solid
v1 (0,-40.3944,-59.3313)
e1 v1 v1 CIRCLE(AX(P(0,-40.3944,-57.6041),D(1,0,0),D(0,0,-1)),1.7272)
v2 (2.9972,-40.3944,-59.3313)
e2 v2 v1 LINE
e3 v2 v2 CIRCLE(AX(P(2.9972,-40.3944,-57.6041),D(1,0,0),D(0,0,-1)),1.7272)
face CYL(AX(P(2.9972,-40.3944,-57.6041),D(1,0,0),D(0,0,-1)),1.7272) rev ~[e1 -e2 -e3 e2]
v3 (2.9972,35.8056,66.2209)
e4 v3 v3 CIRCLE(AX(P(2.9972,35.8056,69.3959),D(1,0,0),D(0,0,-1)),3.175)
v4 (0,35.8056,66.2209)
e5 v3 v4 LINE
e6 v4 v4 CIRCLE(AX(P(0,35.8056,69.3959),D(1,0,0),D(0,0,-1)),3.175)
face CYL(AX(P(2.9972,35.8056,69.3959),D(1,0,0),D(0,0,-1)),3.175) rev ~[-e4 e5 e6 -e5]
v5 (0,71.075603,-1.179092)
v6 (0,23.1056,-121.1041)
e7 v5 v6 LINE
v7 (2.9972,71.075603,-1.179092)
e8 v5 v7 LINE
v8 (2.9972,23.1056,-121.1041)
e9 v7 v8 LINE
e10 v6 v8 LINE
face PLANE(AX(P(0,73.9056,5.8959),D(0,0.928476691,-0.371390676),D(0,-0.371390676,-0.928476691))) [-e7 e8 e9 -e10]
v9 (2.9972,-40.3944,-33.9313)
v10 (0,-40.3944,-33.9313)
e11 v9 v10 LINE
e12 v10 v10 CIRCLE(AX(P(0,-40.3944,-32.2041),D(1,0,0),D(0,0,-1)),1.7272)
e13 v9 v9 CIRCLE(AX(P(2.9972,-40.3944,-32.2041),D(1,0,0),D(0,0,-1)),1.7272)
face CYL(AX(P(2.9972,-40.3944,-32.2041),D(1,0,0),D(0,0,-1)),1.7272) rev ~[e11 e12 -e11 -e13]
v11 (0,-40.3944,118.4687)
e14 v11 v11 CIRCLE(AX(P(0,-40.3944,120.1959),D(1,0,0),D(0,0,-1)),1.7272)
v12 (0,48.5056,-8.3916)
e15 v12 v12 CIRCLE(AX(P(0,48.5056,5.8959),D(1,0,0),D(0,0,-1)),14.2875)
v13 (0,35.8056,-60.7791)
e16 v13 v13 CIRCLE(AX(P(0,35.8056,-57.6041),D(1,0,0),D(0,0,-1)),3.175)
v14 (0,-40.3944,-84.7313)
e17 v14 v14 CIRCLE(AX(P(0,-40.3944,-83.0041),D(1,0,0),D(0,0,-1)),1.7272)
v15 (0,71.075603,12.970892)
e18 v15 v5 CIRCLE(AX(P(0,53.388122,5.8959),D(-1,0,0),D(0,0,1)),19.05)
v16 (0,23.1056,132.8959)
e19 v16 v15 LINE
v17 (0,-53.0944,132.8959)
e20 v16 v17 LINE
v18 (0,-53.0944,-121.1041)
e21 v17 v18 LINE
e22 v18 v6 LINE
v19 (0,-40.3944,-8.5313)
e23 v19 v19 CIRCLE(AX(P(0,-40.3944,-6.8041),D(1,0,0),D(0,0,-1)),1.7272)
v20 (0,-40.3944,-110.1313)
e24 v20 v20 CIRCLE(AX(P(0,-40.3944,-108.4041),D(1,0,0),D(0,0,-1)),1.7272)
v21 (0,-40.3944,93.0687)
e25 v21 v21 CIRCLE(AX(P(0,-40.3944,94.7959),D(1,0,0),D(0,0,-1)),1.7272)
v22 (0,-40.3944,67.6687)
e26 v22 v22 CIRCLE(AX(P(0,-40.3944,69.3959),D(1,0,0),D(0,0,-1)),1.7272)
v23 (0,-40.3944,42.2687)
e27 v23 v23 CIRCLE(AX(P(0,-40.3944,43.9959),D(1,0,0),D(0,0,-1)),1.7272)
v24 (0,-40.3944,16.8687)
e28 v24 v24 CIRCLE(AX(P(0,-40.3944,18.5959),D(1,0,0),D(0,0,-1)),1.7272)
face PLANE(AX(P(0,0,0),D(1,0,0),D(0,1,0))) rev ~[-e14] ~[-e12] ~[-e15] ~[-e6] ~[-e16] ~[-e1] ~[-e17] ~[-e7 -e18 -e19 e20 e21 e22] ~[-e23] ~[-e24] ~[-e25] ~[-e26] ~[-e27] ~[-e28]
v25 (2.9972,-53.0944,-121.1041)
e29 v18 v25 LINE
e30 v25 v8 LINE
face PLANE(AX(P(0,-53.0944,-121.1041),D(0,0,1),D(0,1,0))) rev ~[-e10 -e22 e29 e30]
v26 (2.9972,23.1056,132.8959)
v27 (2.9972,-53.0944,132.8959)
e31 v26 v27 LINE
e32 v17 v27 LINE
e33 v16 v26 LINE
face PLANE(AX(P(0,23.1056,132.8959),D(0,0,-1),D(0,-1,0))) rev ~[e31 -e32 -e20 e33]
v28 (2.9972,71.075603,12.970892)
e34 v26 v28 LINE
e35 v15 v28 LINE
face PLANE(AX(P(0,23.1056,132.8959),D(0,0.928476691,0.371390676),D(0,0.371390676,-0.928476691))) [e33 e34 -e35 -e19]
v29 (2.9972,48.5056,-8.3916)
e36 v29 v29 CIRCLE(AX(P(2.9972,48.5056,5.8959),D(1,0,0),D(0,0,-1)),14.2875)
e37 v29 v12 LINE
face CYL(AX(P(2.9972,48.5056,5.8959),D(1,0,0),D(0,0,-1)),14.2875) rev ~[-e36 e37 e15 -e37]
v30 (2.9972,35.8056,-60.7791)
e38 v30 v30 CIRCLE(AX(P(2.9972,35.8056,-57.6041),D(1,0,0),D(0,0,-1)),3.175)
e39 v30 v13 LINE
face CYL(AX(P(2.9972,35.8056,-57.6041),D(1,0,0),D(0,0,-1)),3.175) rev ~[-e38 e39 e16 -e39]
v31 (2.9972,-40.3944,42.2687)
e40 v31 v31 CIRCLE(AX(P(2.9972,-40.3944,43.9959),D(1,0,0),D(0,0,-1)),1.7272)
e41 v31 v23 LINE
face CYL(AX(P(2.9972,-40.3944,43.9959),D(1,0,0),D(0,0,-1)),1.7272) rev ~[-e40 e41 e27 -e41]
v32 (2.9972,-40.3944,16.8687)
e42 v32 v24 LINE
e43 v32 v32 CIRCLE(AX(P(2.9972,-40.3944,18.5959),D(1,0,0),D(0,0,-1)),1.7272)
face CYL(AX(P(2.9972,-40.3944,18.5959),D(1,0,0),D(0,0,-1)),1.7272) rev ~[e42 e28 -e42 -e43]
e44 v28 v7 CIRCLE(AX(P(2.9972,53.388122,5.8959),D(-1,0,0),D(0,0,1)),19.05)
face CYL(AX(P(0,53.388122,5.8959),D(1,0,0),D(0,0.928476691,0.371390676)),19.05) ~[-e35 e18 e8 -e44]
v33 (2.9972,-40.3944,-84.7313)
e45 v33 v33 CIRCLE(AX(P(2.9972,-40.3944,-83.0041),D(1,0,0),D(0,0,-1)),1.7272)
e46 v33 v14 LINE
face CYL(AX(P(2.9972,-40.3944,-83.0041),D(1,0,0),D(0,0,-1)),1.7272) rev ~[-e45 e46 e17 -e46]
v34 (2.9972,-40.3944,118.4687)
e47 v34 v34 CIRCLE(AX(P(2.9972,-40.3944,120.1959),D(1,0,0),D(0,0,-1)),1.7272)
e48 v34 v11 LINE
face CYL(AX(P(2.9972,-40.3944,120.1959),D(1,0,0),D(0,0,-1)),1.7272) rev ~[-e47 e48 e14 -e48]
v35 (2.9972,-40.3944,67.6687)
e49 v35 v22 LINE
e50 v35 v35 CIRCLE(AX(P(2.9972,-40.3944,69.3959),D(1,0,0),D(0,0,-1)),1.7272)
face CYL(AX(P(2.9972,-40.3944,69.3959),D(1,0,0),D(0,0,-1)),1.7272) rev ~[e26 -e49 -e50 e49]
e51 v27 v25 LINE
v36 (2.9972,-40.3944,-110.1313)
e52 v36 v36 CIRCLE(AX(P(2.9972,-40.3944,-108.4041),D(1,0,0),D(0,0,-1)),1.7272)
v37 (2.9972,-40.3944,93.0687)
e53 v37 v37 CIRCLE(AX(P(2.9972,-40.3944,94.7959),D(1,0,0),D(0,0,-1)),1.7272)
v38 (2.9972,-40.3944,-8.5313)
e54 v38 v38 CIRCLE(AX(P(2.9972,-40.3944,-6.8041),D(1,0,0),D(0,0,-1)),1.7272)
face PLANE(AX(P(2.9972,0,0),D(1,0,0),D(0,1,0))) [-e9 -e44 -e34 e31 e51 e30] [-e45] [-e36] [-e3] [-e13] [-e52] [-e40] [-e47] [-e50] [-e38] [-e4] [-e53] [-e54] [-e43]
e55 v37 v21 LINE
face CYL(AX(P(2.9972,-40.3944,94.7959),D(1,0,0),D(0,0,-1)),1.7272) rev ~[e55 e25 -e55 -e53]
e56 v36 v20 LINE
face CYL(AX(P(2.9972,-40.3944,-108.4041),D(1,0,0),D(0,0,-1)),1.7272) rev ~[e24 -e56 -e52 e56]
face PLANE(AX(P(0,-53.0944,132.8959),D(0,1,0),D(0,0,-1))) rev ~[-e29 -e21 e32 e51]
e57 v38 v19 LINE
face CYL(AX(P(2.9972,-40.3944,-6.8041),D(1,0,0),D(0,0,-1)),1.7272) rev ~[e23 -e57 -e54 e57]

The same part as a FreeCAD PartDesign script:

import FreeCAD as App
import Part
import Sketcher

V = App.Vector
Q = App.Units.Quantity


def edges_at(feature, points):
    """Names of the edges that pass closest to the given points."""
    edges = feature.Shape.Edges
    near = lambda p: min(range(len(edges)), key=lambda i: edges[i].distToShape(Part.Vertex(*p))[0])
    return sorted({f"Edge{near(p) + 1}" for p in points})

doc = App.newDocument("Part")
body = doc.addObject("PartDesign::Body", "Body")

# Sketch on YZ plane
sketch1 = body.newObject("Sketcher::SketchObject", "Sketch")
sketch1.AttachmentSupport = (doc.getObject("YZ_Plane"), [""])
sketch1.MapMode = "FlatFace"
sketch1.addGeometry(Part.LineSegment(V(73.9056, 5.8959, 0), V(23.1056, 132.8959, 0)), False)
sketch1.addGeometry(Part.LineSegment(V(23.1056, 132.8959, 0), V(-53.0944, 132.8959, 0)), False)
sketch1.addGeometry(Part.LineSegment(V(-53.0944, 132.8959, 0), V(-53.0944, -121.1041, 0)), False)
sketch1.addGeometry(Part.LineSegment(V(-53.0944, -121.1041, 0), V(23.1056, -121.1041, 0)), False)
sketch1.addGeometry(Part.LineSegment(V(23.1056, -121.1041, 0), V(73.9056, 5.8959, 0)), False)
sketch1.addConstraint(Sketcher.Constraint("Coincident", 0, 2, 1, 1))
sketch1.addConstraint(Sketcher.Constraint("Coincident", 1, 2, 2, 1))
sketch1.addConstraint(Sketcher.Constraint("Coincident", 2, 2, 3, 1))
sketch1.addConstraint(Sketcher.Constraint("Coincident", 3, 2, 4, 1))
sketch1.addConstraint(Sketcher.Constraint("Coincident", 4, 2, 0, 1))
sketch1.addConstraint(Sketcher.Constraint("Horizontal", 1))
sketch1.addConstraint(Sketcher.Constraint("Vertical", 2))
sketch1.addConstraint(Sketcher.Constraint("Horizontal", 3))
sketch1.addConstraint(Sketcher.Constraint("Vertical", 0, 2, 3, 2))
sketch1.addConstraint(Sketcher.Constraint("Equal", 0, 4))
sketch1.addConstraint(Sketcher.Constraint("DistanceX", 1, 2, 1, 1, Q("3 in")))
sketch1.addConstraint(Sketcher.Constraint("DistanceY", 2, 2, 2, 1, Q("10 in")))
sketch1.addConstraint(Sketcher.Constraint("DistanceX", 0, 2, 4, 2, Q("2 in")))
sketch1.addConstraint(Sketcher.Constraint("DistanceX", -1, 1, 0, 2, 23.1056))
sketch1.addConstraint(Sketcher.Constraint("DistanceY", -1, 1, 0, 2, 132.896))
pad1 = body.newObject("PartDesign::Pad", "Pad")
pad1.Profile = sketch1
pad1.Length = Q("0.118 in")

# Sketch on YZ plane
sketch2 = body.newObject("Sketcher::SketchObject", "Sketch001")
sketch2.AttachmentSupport = (doc.getObject("YZ_Plane"), [""])
sketch2.MapMode = "FlatFace"
sketch2.AttachmentOffset = App.Placement(V(0, 0, 0.118 * 25.4), App.Rotation())
sketch2.addGeometry(Part.Circle(V(-40.3944, 120.1959, 0), V(0, 0, 1), 1.7272), False)
sketch2.addConstraint(Sketcher.Constraint("Diameter", 0, Q("0.136 in")))
sketch2.addConstraint(Sketcher.Constraint("DistanceX", 0, 3, -1, 1, 40.3944))
sketch2.addConstraint(Sketcher.Constraint("DistanceY", -1, 1, 0, 3, 120.196))
pocket1 = body.newObject("PartDesign::Pocket", "Pocket")
pocket1.Profile = sketch2
pocket1.Type = "ThroughAll"
doc.recompute()

linearpattern = body.newObject("PartDesign::LinearPattern", "LinearPattern")
linearpattern.Originals = [pocket1]
linearpattern.Direction = (doc.getObject("Z_Axis"), [""])
linearpattern.Mode = "offset"
linearpattern.Offset = Q("1 in")
linearpattern.Occurrences = 10
linearpattern.Reversed = True
body.Tip = linearpattern

# Sketch on YZ plane
sketch3 = body.newObject("Sketcher::SketchObject", "Sketch002")
sketch3.AttachmentSupport = (doc.getObject("YZ_Plane"), [""])
sketch3.MapMode = "FlatFace"
sketch3.AttachmentOffset = App.Placement(V(0, 0, 0.118 * 25.4), App.Rotation())
sketch3.addGeometry(Part.Circle(V(48.5056, 5.8959, 0), V(0, 0, 1), 14.2875), False)
sketch3.addConstraint(Sketcher.Constraint("Diameter", 0, Q("1.125 in")))
sketch3.addConstraint(Sketcher.Constraint("DistanceX", -1, 1, 0, 3, 48.5056))
sketch3.addConstraint(Sketcher.Constraint("DistanceY", -1, 1, 0, 3, 5.896))
pocket2 = body.newObject("PartDesign::Pocket", "Pocket001")
pocket2.Profile = sketch3
pocket2.Type = "ThroughAll"

# Sketch on YZ plane
sketch4 = body.newObject("Sketcher::SketchObject", "Sketch003")
sketch4.AttachmentSupport = (doc.getObject("YZ_Plane"), [""])
sketch4.MapMode = "FlatFace"
sketch4.AttachmentOffset = App.Placement(V(0, 0, 0.118 * 25.4), App.Rotation())
sketch4.addGeometry(Part.Circle(V(35.8056, 69.3959, 0), V(0, 0, 1), 3.175), False)
sketch4.addGeometry(Part.Circle(V(35.8056, -57.6041, 0), V(0, 0, 1), 3.175), False)
sketch4.addConstraint(Sketcher.Constraint("Equal", 0, 1))
sketch4.addConstraint(Sketcher.Constraint("Vertical", 0, 3, 1, 3))
sketch4.addConstraint(Sketcher.Constraint("Diameter", 0, Q("0.25 in")))
sketch4.addConstraint(Sketcher.Constraint("DistanceY", 1, 3, 0, 3, Q("5 in")))
sketch4.addConstraint(Sketcher.Constraint("DistanceX", -1, 1, 0, 3, 35.8056))
sketch4.addConstraint(Sketcher.Constraint("DistanceY", -1, 1, 0, 3, 69.396))
pocket3 = body.newObject("PartDesign::Pocket", "Pocket002")
pocket3.Profile = sketch4
pocket3.Type = "ThroughAll"
doc.recompute()

fillet = body.newObject("PartDesign::Fillet", "Fillet")
fillet.Base = (pocket3, edges_at(pocket3, [(1.499, 73.906, 5.896)]))
fillet.Radius = Q("0.75 in")

doc.recompute()
